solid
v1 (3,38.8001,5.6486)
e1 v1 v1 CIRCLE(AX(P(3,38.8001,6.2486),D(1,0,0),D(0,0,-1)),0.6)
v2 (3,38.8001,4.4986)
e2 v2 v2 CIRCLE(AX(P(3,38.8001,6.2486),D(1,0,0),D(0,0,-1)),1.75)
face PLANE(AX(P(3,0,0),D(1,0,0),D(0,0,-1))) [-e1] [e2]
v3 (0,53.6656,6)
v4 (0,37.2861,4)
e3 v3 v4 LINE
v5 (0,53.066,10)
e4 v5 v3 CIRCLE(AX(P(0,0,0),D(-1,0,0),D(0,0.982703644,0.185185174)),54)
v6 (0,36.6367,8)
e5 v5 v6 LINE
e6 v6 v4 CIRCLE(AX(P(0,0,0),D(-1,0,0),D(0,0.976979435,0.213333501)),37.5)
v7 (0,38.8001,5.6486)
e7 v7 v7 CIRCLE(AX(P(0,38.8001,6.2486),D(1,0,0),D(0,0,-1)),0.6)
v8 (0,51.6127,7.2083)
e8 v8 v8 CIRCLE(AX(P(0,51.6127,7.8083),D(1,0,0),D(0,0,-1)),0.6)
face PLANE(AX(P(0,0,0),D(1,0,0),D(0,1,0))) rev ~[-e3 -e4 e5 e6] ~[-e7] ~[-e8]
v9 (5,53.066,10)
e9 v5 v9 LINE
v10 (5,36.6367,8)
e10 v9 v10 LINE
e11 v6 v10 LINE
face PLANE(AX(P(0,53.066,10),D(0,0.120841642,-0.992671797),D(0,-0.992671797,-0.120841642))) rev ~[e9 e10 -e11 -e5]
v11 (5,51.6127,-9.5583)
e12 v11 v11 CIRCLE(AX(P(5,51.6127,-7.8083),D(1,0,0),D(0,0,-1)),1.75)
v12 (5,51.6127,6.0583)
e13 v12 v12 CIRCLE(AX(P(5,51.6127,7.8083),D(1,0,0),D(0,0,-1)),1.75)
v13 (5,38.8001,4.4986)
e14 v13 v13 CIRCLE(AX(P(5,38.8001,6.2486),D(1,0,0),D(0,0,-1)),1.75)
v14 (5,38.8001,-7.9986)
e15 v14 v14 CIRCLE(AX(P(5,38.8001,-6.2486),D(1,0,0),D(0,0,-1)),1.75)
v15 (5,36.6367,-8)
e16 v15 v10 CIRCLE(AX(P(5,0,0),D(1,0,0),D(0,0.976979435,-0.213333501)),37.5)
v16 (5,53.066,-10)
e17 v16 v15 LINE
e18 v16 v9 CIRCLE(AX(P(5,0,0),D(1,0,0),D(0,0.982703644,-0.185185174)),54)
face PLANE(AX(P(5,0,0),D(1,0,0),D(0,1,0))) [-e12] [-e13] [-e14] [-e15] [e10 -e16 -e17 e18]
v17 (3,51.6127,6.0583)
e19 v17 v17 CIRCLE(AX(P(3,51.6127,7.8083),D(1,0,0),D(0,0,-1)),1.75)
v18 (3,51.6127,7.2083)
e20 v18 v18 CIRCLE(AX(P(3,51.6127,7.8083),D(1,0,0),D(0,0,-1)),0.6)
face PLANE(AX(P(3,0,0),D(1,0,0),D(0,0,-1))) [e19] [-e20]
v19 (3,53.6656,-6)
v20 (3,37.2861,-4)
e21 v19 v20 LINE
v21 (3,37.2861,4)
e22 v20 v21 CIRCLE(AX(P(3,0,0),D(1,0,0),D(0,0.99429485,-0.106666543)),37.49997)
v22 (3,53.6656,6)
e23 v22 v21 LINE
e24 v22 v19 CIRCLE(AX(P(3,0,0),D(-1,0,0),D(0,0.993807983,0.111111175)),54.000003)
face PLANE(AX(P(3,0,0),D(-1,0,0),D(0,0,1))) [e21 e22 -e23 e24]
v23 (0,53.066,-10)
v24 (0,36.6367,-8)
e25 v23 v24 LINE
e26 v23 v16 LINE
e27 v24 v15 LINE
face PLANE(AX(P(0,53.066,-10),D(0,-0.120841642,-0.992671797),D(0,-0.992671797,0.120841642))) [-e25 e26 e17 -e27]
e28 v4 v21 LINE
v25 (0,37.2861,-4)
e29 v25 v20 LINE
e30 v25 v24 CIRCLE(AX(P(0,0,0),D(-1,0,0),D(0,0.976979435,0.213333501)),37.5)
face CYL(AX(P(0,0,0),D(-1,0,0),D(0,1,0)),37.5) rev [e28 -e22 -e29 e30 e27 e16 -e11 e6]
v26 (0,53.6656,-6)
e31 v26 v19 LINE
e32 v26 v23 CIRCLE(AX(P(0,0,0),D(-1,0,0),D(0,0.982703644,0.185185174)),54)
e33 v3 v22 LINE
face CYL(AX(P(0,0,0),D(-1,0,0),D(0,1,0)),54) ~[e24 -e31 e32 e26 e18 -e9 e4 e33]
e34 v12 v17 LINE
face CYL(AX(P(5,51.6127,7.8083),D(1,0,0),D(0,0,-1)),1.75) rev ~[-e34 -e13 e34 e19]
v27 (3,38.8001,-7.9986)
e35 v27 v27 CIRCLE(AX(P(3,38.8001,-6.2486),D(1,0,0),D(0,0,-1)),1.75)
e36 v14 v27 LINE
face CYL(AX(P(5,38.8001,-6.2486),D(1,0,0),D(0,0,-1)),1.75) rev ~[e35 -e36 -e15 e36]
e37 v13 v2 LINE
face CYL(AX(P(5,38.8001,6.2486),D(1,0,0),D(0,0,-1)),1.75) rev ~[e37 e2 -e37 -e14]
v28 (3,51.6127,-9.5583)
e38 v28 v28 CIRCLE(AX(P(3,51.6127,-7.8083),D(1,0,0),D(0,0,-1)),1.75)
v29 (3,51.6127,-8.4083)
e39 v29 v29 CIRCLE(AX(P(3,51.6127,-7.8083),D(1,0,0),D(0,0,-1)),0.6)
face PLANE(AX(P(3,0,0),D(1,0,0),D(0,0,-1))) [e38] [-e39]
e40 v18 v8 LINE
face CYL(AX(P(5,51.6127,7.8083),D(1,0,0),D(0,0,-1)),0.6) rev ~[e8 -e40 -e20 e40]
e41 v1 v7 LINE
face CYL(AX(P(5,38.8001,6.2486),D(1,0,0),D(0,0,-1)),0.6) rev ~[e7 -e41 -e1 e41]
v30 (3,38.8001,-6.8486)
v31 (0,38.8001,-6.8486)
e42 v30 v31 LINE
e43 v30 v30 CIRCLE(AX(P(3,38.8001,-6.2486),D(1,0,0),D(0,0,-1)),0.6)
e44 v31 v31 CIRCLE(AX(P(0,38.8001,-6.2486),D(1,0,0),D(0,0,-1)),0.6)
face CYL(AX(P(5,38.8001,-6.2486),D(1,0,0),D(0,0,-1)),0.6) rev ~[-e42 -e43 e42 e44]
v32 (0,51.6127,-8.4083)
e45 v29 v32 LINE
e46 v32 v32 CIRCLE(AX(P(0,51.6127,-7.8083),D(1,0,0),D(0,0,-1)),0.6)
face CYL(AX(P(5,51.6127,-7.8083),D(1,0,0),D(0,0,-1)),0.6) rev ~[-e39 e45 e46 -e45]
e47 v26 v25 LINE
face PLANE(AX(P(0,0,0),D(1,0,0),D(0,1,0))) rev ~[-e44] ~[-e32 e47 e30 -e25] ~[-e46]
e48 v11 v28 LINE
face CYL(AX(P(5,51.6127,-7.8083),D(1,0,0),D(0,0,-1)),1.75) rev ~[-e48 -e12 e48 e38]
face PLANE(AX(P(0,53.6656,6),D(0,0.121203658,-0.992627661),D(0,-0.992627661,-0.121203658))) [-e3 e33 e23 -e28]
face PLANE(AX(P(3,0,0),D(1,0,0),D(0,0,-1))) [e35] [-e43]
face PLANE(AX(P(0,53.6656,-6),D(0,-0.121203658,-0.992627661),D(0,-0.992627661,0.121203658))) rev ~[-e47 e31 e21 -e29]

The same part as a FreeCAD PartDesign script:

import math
import FreeCAD as App
import Part
import Sketcher

doc = App.newDocument("Part")
params = doc.addObject("Spreadsheet::Sheet", "Params")
for row, (alias, value) in enumerate([
    ("sketch1_radius", "54 mm"),
    ("sketch1_radius2", "37.5 mm"),
    ("pad1_length", "5 mm"),
    ("sketch2_radius", "54 mm"),
    ("sketch2_radius2", "37.5 mm"),
    ("pocket1_length", "3 mm"),
    ("sketch3_diameter", "1.2 mm"),
    ("sketch4_diameter", "3.5 mm"),
    ("sketch4_diameter2", "1.2 mm"),
    ("pocket3_length", "2 mm"),
], start=1):
    params.set(f"A{row}", alias)
    params.set(f"B{row}", "=" + value)
    params.setAlias(f"B{row}", alias)

body = doc.addObject("PartDesign::Body", "Body")

# Sketch on YZ plane
sketch1 = body.newObject("Sketcher::SketchObject", "Sketch")
sketch1.AttachmentSupport = (doc.getObject("YZ_Plane"), [""])
sketch1.MapMode = "FlatFace"
sketch1.addGeometry(Part.ArcOfCircle(Part.Circle(App.Vector(0, 0, 0), App.Vector(0, 0, 1), 38), math.radians(-12), math.radians(12)), False)
sketch1.addGeometry(Part.LineSegment(App.Vector(37, -8, 0), App.Vector(53, -10, 0)), False)
sketch1.addGeometry(Part.ArcOfCircle(Part.Circle(App.Vector(0, 0, 0), App.Vector(0, 0, 1), 54), math.radians(-11), math.radians(11)), False)
sketch1.addGeometry(Part.LineSegment(App.Vector(53, 10, 0), App.Vector(37, 8, 0)), False)
sketch1.addConstraint(Sketcher.Constraint("Coincident", 0, 1, 1, 1))
sketch1.addConstraint(Sketcher.Constraint("Coincident", 1, 2, 2, 1))
sketch1.addConstraint(Sketcher.Constraint("Coincident", 2, 2, 3, 1))
sketch1.addConstraint(Sketcher.Constraint("Coincident", 3, 2, 0, 2))
sketch1.addConstraint(Sketcher.Constraint("Coincident", 0, 3, -1, 1))
sketch1.addConstraint(Sketcher.Constraint("Coincident", 2, 3, -1, 1))
sketch1.addConstraint(Sketcher.Constraint("Vertical", 1, 2, 2, 2))
sketch1.addConstraint(Sketcher.Constraint("Vertical", 0, 1, 3, 2))
sketch1.addConstraint(Sketcher.Constraint("Radius", 2, 54.0))
sketch1.addConstraint(Sketcher.Constraint("Radius", 0, 37.5))
sketch1.addConstraint(Sketcher.Constraint("DistanceY", 0, 1, -1, 1, 8.0))
sketch1.addConstraint(Sketcher.Constraint("DistanceY", 1, 2, -1, 1, 10.0))
sketch1.setExpression("Constraints[8]", "Params.sketch1_radius")
sketch1.setExpression("Constraints[9]", "Params.sketch1_radius2")
pad1 = body.newObject("PartDesign::Pad", "Pad")
pad1.Profile = sketch1
pad1.setExpression("Length", "Params.pad1_length")

# Sketch on YZ plane
sketch2 = body.newObject("Sketcher::SketchObject", "Sketch001")
sketch2.AttachmentSupport = (doc.getObject("YZ_Plane"), [""])
sketch2.MapMode = "FlatFace"
sketch2.addGeometry(Part.LineSegment(App.Vector(37, 4, 0), App.Vector(54, 6, 0)), False)
sketch2.addGeometry(Part.ArcOfCircle(Part.Circle(App.Vector(0, 0, 0), App.Vector(0, 0, 1), 54), math.radians(-6.38), math.radians(6.38)), False)
sketch2.addGeometry(Part.LineSegment(App.Vector(54, -6, 0), App.Vector(37, -4, 0)), False)
sketch2.addGeometry(Part.ArcOfCircle(Part.Circle(App.Vector(0, 0, 0), App.Vector(0, 0, 1), 37), math.radians(-6.12), math.radians(6.12)), False)
sketch2.addConstraint(Sketcher.Constraint("Coincident", 0, 2, 1, 2))
sketch2.addConstraint(Sketcher.Constraint("Coincident", 1, 1, 2, 1))
sketch2.addConstraint(Sketcher.Constraint("Coincident", 2, 2, 3, 1))
sketch2.addConstraint(Sketcher.Constraint("Coincident", 3, 2, 0, 1))
sketch2.addConstraint(Sketcher.Constraint("Coincident", 1, 3, -1, 1))
sketch2.addConstraint(Sketcher.Constraint("Coincident", 3, 3, -1, 1))
sketch2.addConstraint(Sketcher.Constraint("Vertical", 0, 2, 1, 1))
sketch2.addConstraint(Sketcher.Constraint("Vertical", 2, 2, 3, 2))
sketch2.addConstraint(Sketcher.Constraint("DistanceY", 2, 2, -1, 1, 4.0))
sketch2.addConstraint(Sketcher.Constraint("Radius", 1, 54.0))
sketch2.addConstraint(Sketcher.Constraint("Radius", 3, 37.5))
sketch2.addConstraint(Sketcher.Constraint("DistanceY", -1, 1, 0, 2, 6.0))
sketch2.setExpression("Constraints[9]", "Params.sketch2_radius")
sketch2.setExpression("Constraints[10]", "Params.sketch2_radius2")
pocket1 = body.newObject("PartDesign::Pocket", "Pocket")
pocket1.Profile = sketch2
pocket1.setExpression("Length", "Params.pocket1_length")
pocket1.Reversed = True

# Sketch on YZ plane
sketch3 = body.newObject("Sketcher::SketchObject", "Sketch002")
sketch3.AttachmentSupport = (doc.getObject("YZ_Plane"), [""])
sketch3.MapMode = "FlatFace"
sketch3.AttachmentOffset = App.Placement(App.Vector(0, 0, 5), App.Rotation())
sketch3.addGeometry(Part.Circle(App.Vector(51.6, 7.8, 0), App.Vector(0, 0, 1), 0.6), False)
sketch3.addGeometry(Part.Circle(App.Vector(38.8, 6.2, 0), App.Vector(0, 0, 1), 0.6), False)
sketch3.addGeometry(Part.Circle(App.Vector(51.6, -7.8, 0), App.Vector(0, 0, 1), 0.6), False)
sketch3.addGeometry(Part.Circle(App.Vector(38.8, -6.2, 0), App.Vector(0, 0, 1), 0.6), False)
sketch3.addConstraint(Sketcher.Constraint("Equal", 0, 1))
sketch3.addConstraint(Sketcher.Constraint("Equal", 1, 2))
sketch3.addConstraint(Sketcher.Constraint("Equal", 2, 3))
sketch3.addConstraint(Sketcher.Constraint("Symmetric", 0, 3, 2, 3, -1))
sketch3.addConstraint(Sketcher.Constraint("Symmetric", 1, 3, 3, 3, -1))
sketch3.addConstraint(Sketcher.Constraint("Diameter", 0, 1.2))
sketch3.addConstraint(Sketcher.Constraint("DistanceX", -1, 1, 1, 3, 38.8))
sketch3.addConstraint(Sketcher.Constraint("DistanceY", 2, 3, 1, 3, 14.057))
sketch3.addConstraint(Sketcher.Constraint("DistanceX", -1, 1, 0, 3, 51.6127))
sketch3.addConstraint(Sketcher.Constraint("DistanceY", -1, 1, 0, 3, 7.8083))
sketch3.setExpression("Constraints[5]", "Params.sketch3_diameter")
pocket2 = body.newObject("PartDesign::Pocket", "Pocket001")
pocket2.Profile = sketch3
pocket2.Type = "ThroughAll"

# Sketch on YZ plane
sketch4 = body.newObject("Sketcher::SketchObject", "Sketch003")
sketch4.AttachmentSupport = (doc.getObject("YZ_Plane"), [""])
sketch4.MapMode = "FlatFace"
sketch4.AttachmentOffset = App.Placement(App.Vector(0, 0, 5), App.Rotation())
sketch4.addGeometry(Part.Circle(App.Vector(51.6, 7.8, 0), App.Vector(0, 0, 1), 1.8), False)
sketch4.addGeometry(Part.Circle(App.Vector(51.6, 7.8, 0), App.Vector(0, 0, 1), 0.6), False)
sketch4.addGeometry(Part.Circle(App.Vector(51.6, -7.8, 0), App.Vector(0, 0, 1), 1.8), False)
sketch4.addGeometry(Part.Circle(App.Vector(51.6, -7.8, 0), App.Vector(0, 0, 1), 0.6), False)
sketch4.addGeometry(Part.Circle(App.Vector(38.8, -6.2, 0), App.Vector(0, 0, 1), 1.8), False)
sketch4.addGeometry(Part.Circle(App.Vector(38.8, -6.2, 0), App.Vector(0, 0, 1), 0.6), False)
sketch4.addGeometry(Part.Circle(App.Vector(38.8, 6.2, 0), App.Vector(0, 0, 1), 1.8), False)
sketch4.addGeometry(Part.Circle(App.Vector(38.8, 6.2, 0), App.Vector(0, 0, 1), 0.6), False)
sketch4.addConstraint(Sketcher.Constraint("Coincident", 1, 3, 0, 3))
sketch4.addConstraint(Sketcher.Constraint("Coincident", 3, 3, 2, 3))
sketch4.addConstraint(Sketcher.Constraint("Coincident", 5, 3, 4, 3))
sketch4.addConstraint(Sketcher.Constraint("Coincident", 7, 3, 6, 3))
sketch4.addConstraint(Sketcher.Constraint("Equal", 0, 2))
sketch4.addConstraint(Sketcher.Constraint("Equal", 1, 3))
sketch4.addConstraint(Sketcher.Constraint("Equal", 2, 4))
sketch4.addConstraint(Sketcher.Constraint("Equal", 3, 5))
sketch4.addConstraint(Sketcher.Constraint("Equal", 4, 6))
sketch4.addConstraint(Sketcher.Constraint("Equal", 5, 7))
sketch4.addConstraint(Sketcher.Constraint("Symmetric", 0, 3, 2, 3, -1))
sketch4.addConstraint(Sketcher.Constraint("Symmetric", 4, 3, 6, 3, -1))
sketch4.addConstraint(Sketcher.Constraint("Diameter", 0, 3.5))
sketch4.addConstraint(Sketcher.Constraint("Diameter", 1, 1.2))
sketch4.addConstraint(Sketcher.Constraint("DistanceX", -1, 1, 4, 3, 38.8))
sketch4.addConstraint(Sketcher.Constraint("DistanceY", 4, 3, 0, 3, 14.057))
sketch4.addConstraint(Sketcher.Constraint("DistanceX", -1, 1, 0, 3, 51.6127))
sketch4.addConstraint(Sketcher.Constraint("DistanceY", -1, 1, 0, 3, 7.8083))
sketch4.setExpression("Constraints[12]", "Params.sketch4_diameter")
sketch4.setExpression("Constraints[13]", "Params.sketch4_diameter2")
pocket3 = body.newObject("PartDesign::Pocket", "Pocket002")
pocket3.Profile = sketch4
pocket3.setExpression("Length", "Params.pocket3_length")

doc.recompute()
